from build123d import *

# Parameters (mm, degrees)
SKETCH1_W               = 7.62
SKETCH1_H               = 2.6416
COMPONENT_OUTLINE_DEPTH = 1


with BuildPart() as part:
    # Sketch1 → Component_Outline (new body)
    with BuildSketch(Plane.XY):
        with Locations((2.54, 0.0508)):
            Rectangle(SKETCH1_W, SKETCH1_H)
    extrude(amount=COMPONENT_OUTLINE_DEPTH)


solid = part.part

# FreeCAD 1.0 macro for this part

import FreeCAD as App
import Part
import Sketcher

V = App.Vector
Q = App.Units.Quantity


def add_polygon(sketch, points):
    """Adds a closed chain of lines whose ends are joined by coincident constraints."""
    first, n = sketch.GeometryCount, len(points)
    for a, b in zip(points, points[1:] + points[:1]):
        sketch.addGeometry(Part.LineSegment(App.Vector(*a, 0), App.Vector(*b, 0)), False)
    for i in range(n):
        sketch.addConstraint(Sketcher.Constraint("Coincident", first + i, 2, first + (i + 1) % n, 1))

doc = App.newDocument("Part")
body = doc.addObject("PartDesign::Body", "Body")

sketch1 = body.newObject("Sketcher::SketchObject", "Sketch")
sketch1.AttachmentSupport = (doc.getObject("XY_Plane"), [""])
sketch1.MapMode = "FlatFace"
add_polygon(sketch1, [(-1.3, 1.4), (-1.3, -1.3), (6.3, -1.3), (6.3, 1.4)])
sketch1.addConstraint([
    Sketcher.Constraint("Vertical", 0),
    Sketcher.Constraint("Horizontal", 1),
    Sketcher.Constraint("Vertical", 2),
    Sketcher.Constraint("Horizontal", 3),
    Sketcher.Constraint("DistanceX", 1, 1, 1, 2, Q("0.3 in")),
    Sketcher.Constraint("DistanceY", 0, 2, 0, 1, Q("0.104 in")),
    Sketcher.Constraint("DistanceX", 0, 2, -1, 1, Q("0.05 in")),
    Sketcher.Constraint("DistanceY", 0, 2, -1, 1, Q("0.05 in")),
])
pad1 = body.newObject("PartDesign::Pad", "Pad")
pad1.Profile = sketch1
pad1.Length = 1

doc.recompute()
